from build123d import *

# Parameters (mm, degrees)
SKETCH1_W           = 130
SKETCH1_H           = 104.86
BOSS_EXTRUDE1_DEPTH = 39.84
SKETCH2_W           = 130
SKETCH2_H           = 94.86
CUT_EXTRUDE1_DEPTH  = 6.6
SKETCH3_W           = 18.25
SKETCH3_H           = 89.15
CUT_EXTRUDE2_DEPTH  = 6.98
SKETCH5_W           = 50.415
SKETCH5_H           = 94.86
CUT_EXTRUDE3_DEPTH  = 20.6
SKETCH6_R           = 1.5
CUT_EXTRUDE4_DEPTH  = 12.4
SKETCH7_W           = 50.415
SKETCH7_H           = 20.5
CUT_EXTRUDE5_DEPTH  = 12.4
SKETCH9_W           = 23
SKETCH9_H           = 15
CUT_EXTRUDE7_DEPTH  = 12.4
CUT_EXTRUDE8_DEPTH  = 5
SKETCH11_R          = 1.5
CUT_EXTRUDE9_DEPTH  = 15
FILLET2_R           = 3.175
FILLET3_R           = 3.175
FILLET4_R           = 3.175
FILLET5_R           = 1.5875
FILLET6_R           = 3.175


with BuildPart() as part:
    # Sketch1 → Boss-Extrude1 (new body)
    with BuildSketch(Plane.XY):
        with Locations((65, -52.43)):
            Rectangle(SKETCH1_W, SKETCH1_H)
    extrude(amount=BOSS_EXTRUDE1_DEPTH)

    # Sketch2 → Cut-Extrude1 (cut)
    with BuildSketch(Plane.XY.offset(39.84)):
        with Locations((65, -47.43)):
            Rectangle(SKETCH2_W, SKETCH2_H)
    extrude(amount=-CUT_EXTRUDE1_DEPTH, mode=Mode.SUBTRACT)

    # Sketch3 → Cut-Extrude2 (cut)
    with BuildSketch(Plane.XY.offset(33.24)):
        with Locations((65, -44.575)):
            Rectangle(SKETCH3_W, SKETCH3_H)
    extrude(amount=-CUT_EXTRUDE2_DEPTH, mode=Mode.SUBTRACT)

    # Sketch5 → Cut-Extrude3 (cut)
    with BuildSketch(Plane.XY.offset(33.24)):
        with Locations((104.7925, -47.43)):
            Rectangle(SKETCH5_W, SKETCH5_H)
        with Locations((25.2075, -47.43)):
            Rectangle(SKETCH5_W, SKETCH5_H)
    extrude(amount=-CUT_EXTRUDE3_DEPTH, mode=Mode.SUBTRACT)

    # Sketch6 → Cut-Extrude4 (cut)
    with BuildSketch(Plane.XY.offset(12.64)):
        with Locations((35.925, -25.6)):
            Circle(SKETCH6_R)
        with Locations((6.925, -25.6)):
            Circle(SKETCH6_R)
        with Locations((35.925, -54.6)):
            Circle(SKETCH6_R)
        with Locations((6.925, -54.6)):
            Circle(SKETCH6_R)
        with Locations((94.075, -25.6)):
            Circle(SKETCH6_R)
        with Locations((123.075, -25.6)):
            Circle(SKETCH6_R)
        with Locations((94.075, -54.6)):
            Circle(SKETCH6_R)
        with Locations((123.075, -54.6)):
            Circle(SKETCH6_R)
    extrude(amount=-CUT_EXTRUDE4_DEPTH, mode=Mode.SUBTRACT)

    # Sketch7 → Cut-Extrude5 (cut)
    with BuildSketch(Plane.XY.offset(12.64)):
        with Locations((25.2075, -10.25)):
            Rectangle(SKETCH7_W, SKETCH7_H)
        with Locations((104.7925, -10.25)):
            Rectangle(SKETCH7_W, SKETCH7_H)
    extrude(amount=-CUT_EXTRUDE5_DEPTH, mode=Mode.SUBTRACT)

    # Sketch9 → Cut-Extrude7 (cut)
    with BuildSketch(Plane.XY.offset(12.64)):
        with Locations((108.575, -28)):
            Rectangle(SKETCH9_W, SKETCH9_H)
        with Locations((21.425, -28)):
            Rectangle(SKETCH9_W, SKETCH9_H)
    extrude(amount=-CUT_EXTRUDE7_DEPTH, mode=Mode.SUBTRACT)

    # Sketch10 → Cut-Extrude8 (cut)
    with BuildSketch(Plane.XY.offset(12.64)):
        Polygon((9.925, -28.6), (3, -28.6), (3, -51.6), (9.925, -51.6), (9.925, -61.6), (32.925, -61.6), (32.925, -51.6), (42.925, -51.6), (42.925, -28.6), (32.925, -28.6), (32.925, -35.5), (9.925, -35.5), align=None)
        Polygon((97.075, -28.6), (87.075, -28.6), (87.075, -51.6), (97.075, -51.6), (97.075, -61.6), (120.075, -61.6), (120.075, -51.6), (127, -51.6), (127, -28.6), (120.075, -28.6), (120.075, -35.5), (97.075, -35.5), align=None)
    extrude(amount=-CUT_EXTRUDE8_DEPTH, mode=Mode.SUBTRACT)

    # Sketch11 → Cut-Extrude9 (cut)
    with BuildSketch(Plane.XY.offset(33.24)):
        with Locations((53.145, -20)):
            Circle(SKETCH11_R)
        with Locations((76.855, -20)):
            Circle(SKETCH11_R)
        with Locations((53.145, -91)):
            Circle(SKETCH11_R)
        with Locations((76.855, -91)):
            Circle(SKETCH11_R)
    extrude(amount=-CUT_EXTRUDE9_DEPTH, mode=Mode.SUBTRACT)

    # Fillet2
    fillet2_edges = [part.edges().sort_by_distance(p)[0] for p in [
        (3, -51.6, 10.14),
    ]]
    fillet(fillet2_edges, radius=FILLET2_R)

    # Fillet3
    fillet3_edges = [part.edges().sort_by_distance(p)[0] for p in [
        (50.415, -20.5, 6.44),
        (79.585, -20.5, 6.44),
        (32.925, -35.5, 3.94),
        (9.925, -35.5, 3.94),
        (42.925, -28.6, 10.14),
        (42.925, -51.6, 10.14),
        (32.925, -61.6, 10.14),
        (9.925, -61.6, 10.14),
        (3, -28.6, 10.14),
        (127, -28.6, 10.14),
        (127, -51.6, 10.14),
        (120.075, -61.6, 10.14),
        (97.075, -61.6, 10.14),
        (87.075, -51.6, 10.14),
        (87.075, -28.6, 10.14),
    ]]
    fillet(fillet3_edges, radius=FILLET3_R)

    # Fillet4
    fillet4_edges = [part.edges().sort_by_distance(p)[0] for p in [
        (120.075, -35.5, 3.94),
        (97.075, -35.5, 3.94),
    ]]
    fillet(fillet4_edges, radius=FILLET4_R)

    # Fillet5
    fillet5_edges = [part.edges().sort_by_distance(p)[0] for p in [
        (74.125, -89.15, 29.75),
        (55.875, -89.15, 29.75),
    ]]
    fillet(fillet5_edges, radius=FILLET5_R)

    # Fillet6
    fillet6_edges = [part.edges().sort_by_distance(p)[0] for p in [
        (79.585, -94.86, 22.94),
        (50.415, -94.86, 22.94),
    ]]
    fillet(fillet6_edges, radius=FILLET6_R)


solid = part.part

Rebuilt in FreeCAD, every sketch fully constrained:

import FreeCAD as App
import Part
import Sketcher


def edges_at(feature, points):
    """Names of the edges that pass closest to the given points."""
    edges = feature.Shape.Edges
    near = lambda p: min(range(len(edges)), key=lambda i: edges[i].distToShape(Part.Vertex(*p))[0])
    return sorted({f"Edge{near(p) + 1}" for p in points})


def add_polygon(sketch, points):
    """Adds a closed chain of lines whose ends are joined by coincident constraints."""
    first, n = sketch.GeometryCount, len(points)
    for a, b in zip(points, points[1:] + points[:1]):
        sketch.addGeometry(Part.LineSegment(App.Vector(*a, 0), App.Vector(*b, 0)), False)
    for i in range(n):
        sketch.addConstraint(Sketcher.Constraint("Coincident", first + i, 2, first + (i + 1) % n, 1))

doc = App.newDocument("Part")
body = doc.addObject("PartDesign::Body", "Body")

# Sketch on XY plane
sketch1 = body.newObject("Sketcher::SketchObject", "Sketch")
sketch1.AttachmentSupport = (doc.getObject("XY_Plane"), [""])
sketch1.MapMode = "FlatFace"
add_polygon(sketch1, [(0, 0), (0, -105), (130, -105), (130, 0)])  # lines 0-3
sketch1.addConstraint(Sketcher.Constraint("Vertical", 0))
sketch1.addConstraint(Sketcher.Constraint("Horizontal", 1))
sketch1.addConstraint(Sketcher.Constraint("Vertical", 2))
sketch1.addConstraint(Sketcher.Constraint("Horizontal", 3))
sketch1.addConstraint(Sketcher.Constraint("Coincident", 3, 2, -1, 1))
sketch1.addConstraint(Sketcher.Constraint("DistanceX", 1, 1, 1, 2, 130.0))
sketch1.addConstraint(Sketcher.Constraint("DistanceY", 0, 2, 0, 1, 104.86))
pad1 = body.newObject("PartDesign::Pad", "Pad")
pad1.Profile = sketch1
pad1.Length = 39.84

# Sketch on XY plane
sketch2 = body.newObject("Sketcher::SketchObject", "Sketch001")
sketch2.AttachmentSupport = (doc.getObject("XY_Plane"), [""])
sketch2.MapMode = "FlatFace"
sketch2.AttachmentOffset = App.Placement(App.Vector(0, 0, 39.84), App.Rotation())
add_polygon(sketch2, [(0, 0), (0, -95), (130, -95), (130, 0)])  # lines 0-3
sketch2.addConstraint(Sketcher.Constraint("Vertical", 0))
sketch2.addConstraint(Sketcher.Constraint("Horizontal", 1))
sketch2.addConstraint(Sketcher.Constraint("Vertical", 2))
sketch2.addConstraint(Sketcher.Constraint("Horizontal", 3))
sketch2.addConstraint(Sketcher.Constraint("Coincident", 3, 2, -1, 1))
sketch2.addConstraint(Sketcher.Constraint("DistanceX", 1, 1, 1, 2, 130.0))
sketch2.addConstraint(Sketcher.Constraint("DistanceY", 0, 2, 0, 1, 94.86))
pocket1 = body.newObject("PartDesign::Pocket", "Pocket")
pocket1.Profile = sketch2
pocket1.Length = 6.6

# Sketch on XY plane
sketch3 = body.newObject("Sketcher::SketchObject", "Sketch002")
sketch3.AttachmentSupport = (doc.getObject("XY_Plane"), [""])
sketch3.MapMode = "FlatFace"
sketch3.AttachmentOffset = App.Placement(App.Vector(0, 0, 33.24), App.Rotation())
add_polygon(sketch3, [(56, 0), (56, -89), (74, -89), (74, 0)])  # lines 0-3
sketch3.addConstraint(Sketcher.Constraint("Vertical", 0))
sketch3.addConstraint(Sketcher.Constraint("Horizontal", 1))
sketch3.addConstraint(Sketcher.Constraint("Vertical", 2))
sketch3.addConstraint(Sketcher.Constraint("Horizontal", 3))
sketch3.addConstraint(Sketcher.Constraint("PointOnObject", 2, 2, -1))
sketch3.addConstraint(Sketcher.Constraint("DistanceX", 1, 1, 1, 2, 18.25))
sketch3.addConstraint(Sketcher.Constraint("DistanceY", 0, 2, 0, 1, 89.15))
sketch3.addConstraint(Sketcher.Constraint("DistanceX", -1, 1, 0, 2, 55.875))
pocket2 = body.newObject("PartDesign::Pocket", "Pocket001")
pocket2.Profile = sketch3
pocket2.Length = 6.98

# Sketch on XY plane
sketch4 = body.newObject("Sketcher::SketchObject", "Sketch003")
sketch4.AttachmentSupport = (doc.getObject("XY_Plane"), [""])
sketch4.MapMode = "FlatFace"
sketch4.AttachmentOffset = App.Placement(App.Vector(0, 0, 33.24), App.Rotation())
add_polygon(sketch4, [(80, 0), (80, -95), (130, -95), (130, 0)])  # lines 0-3
add_polygon(sketch4, [(0, 0), (0, -95), (50, -95), (50, 0)])  # lines 4-7
sketch4.addConstraint(Sketcher.Constraint("Vertical", 0))
sketch4.addConstraint(Sketcher.Constraint("Horizontal", 1))
sketch4.addConstraint(Sketcher.Constraint("Vertical", 2))
sketch4.addConstraint(Sketcher.Constraint("Horizontal", 3))
sketch4.addConstraint(Sketcher.Constraint("Vertical", 4))
sketch4.addConstraint(Sketcher.Constraint("Horizontal", 5))
sketch4.addConstraint(Sketcher.Constraint("Vertical", 6))
sketch4.addConstraint(Sketcher.Constraint("Horizontal", 7))
sketch4.addConstraint(Sketcher.Constraint("Coincident", 7, 2, -1, 1))
sketch4.addConstraint(Sketcher.Constraint("PointOnObject", 2, 2, -1))
sketch4.addConstraint(Sketcher.Constraint("Horizontal", 1, 2, 4, 2))
sketch4.addConstraint(Sketcher.Constraint("Equal", 3, 5))
sketch4.addConstraint(Sketcher.Constraint("DistanceX", -1, 1, 1, 2, 130.0))
sketch4.addConstraint(Sketcher.Constraint("DistanceY", 0, 2, 0, 1, 94.86))
sketch4.addConstraint(Sketcher.Constraint("DistanceX", 1, 1, 1, 2, 50.415))
pocket3 = body.newObject("PartDesign::Pocket", "Pocket002")
pocket3.Profile = sketch4
pocket3.Length = 20.6

# Sketch on XY plane
sketch5 = body.newObject("Sketcher::SketchObject", "Sketch004")
sketch5.AttachmentSupport = (doc.getObject("XY_Plane"), [""])
sketch5.MapMode = "FlatFace"
sketch5.AttachmentOffset = App.Placement(App.Vector(0, 0, 12.64), App.Rotation())
sketch5.addGeometry(Part.Circle(App.Vector(35.9, -25.6, 0), App.Vector(0, 0, 1), 1.5), False)
sketch5.addGeometry(Part.Circle(App.Vector(6.9, -25.6, 0), App.Vector(0, 0, 1), 1.5), False)
sketch5.addGeometry(Part.Circle(App.Vector(35.9, -54.6, 0), App.Vector(0, 0, 1), 1.5), False)
sketch5.addGeometry(Part.Circle(App.Vector(6.9, -54.6, 0), App.Vector(0, 0, 1), 1.5), False)
sketch5.addGeometry(Part.Circle(App.Vector(94.1, -25.6, 0), App.Vector(0, 0, 1), 1.5), False)
sketch5.addGeometry(Part.Circle(App.Vector(123.1, -25.6, 0), App.Vector(0, 0, 1), 1.5), False)
sketch5.addGeometry(Part.Circle(App.Vector(94.1, -54.6, 0), App.Vector(0, 0, 1), 1.5), False)
sketch5.addGeometry(Part.Circle(App.Vector(123.1, -54.6, 0), App.Vector(0, 0, 1), 1.5), False)
sketch5.addConstraint(Sketcher.Constraint("Equal", 0, 1))
sketch5.addConstraint(Sketcher.Constraint("Equal", 1, 2))
sketch5.addConstraint(Sketcher.Constraint("Equal", 2, 3))
sketch5.addConstraint(Sketcher.Constraint("Equal", 3, 4))
sketch5.addConstraint(Sketcher.Constraint("Equal", 4, 5))
sketch5.addConstraint(Sketcher.Constraint("Equal", 5, 6))
sketch5.addConstraint(Sketcher.Constraint("Equal", 6, 7))
sketch5.addConstraint(Sketcher.Constraint("Horizontal", 0, 3, 1, 3))
sketch5.addConstraint(Sketcher.Constraint("Horizontal", 2, 3, 3, 3))
sketch5.addConstraint(Sketcher.Constraint("Horizontal", 1, 3, 4, 3))
sketch5.addConstraint(Sketcher.Constraint("Horizontal", 4, 3, 5, 3))
sketch5.addConstraint(Sketcher.Constraint("Horizontal", 3, 3, 6, 3))
sketch5.addConstraint(Sketcher.Constraint("Horizontal", 6, 3, 7, 3))
sketch5.addConstraint(Sketcher.Constraint("Vertical", 0, 3, 2, 3))
sketch5.addConstraint(Sketcher.Constraint("Vertical", 1, 3, 3, 3))
sketch5.addConstraint(Sketcher.Constraint("Vertical", 4, 3, 6, 3))
sketch5.addConstraint(Sketcher.Constraint("Vertical", 5, 3, 7, 3))
sketch5.addConstraint(Sketcher.Constraint("Diameter", 0, 3.0))
sketch5.addConstraint(Sketcher.Constraint("DistanceX", 1, 3, 0, 3, 29.0))
sketch5.addConstraint(Sketcher.Constraint("DistanceY", 2, 3, 0, 3, 29.0))
sketch5.addConstraint(Sketcher.Constraint("DistanceX", 4, 3, 5, 3, 29.0))
sketch5.addConstraint(Sketcher.Constraint("DistanceY", 0, 3, -1, 1, 25.6))
sketch5.addConstraint(Sketcher.Constraint("DistanceX", 0, 3, 4, 3, 58.15))
sketch5.addConstraint(Sketcher.Constraint("DistanceX", -1, 1, 0, 3, 35.925))
pocket4 = body.newObject("PartDesign::Pocket", "Pocket003")
pocket4.Profile = sketch5
pocket4.Length = 12.4

# Sketch on XY plane
sketch6 = body.newObject("Sketcher::SketchObject", "Sketch005")
sketch6.AttachmentSupport = (doc.getObject("XY_Plane"), [""])
sketch6.MapMode = "FlatFace"
sketch6.AttachmentOffset = App.Placement(App.Vector(0, 0, 12.64), App.Rotation())
add_polygon(sketch6, [(0, 0), (0, -20), (50, -20), (50, 0)])  # lines 0-3
add_polygon(sketch6, [(80, 0), (80, -20), (130, -20), (130, 0)])  # lines 4-7
sketch6.addConstraint(Sketcher.Constraint("Vertical", 0))
sketch6.addConstraint(Sketcher.Constraint("Horizontal", 1))
sketch6.addConstraint(Sketcher.Constraint("Vertical", 2))
sketch6.addConstraint(Sketcher.Constraint("Horizontal", 3))
sketch6.addConstraint(Sketcher.Constraint("Vertical", 4))
sketch6.addConstraint(Sketcher.Constraint("Horizontal", 5))
sketch6.addConstraint(Sketcher.Constraint("Vertical", 6))
sketch6.addConstraint(Sketcher.Constraint("Horizontal", 7))
sketch6.addConstraint(Sketcher.Constraint("Coincident", 3, 2, -1, 1))
sketch6.addConstraint(Sketcher.Constraint("PointOnObject", 6, 2, -1))
sketch6.addConstraint(Sketcher.Constraint("Horizontal", 1, 2, 4, 2))
sketch6.addConstraint(Sketcher.Constraint("Equal", 3, 5))
sketch6.addConstraint(Sketcher.Constraint("DistanceY", 0, 2, 0, 1, 20.5))
sketch6.addConstraint(Sketcher.Constraint("DistanceX", -1, 1, 5, 2, 130.0))
sketch6.addConstraint(Sketcher.Constraint("DistanceX", 1, 1, 1, 2, 50.415))
pocket5 = body.newObject("PartDesign::Pocket", "Pocket004")
pocket5.Profile = sketch6
pocket5.Length = 12.4

# Sketch on XY plane
sketch7 = body.newObject("Sketcher::SketchObject", "Sketch006")
sketch7.AttachmentSupport = (doc.getObject("XY_Plane"), [""])
sketch7.MapMode = "FlatFace"
sketch7.AttachmentOffset = App.Placement(App.Vector(0, 0, 12.64), App.Rotation())
add_polygon(sketch7, [(97, -20), (97, -36), (120, -36), (120, -20)])  # lines 0-3
add_polygon(sketch7, [(10, -20), (10, -36), (33, -36), (33, -20)])  # lines 4-7
sketch7.addConstraint(Sketcher.Constraint("Vertical", 0))
sketch7.addConstraint(Sketcher.Constraint("Horizontal", 1))
sketch7.addConstraint(Sketcher.Constraint("Vertical", 2))
sketch7.addConstraint(Sketcher.Constraint("Horizontal", 3))
sketch7.addConstraint(Sketcher.Constraint("Vertical", 4))
sketch7.addConstraint(Sketcher.Constraint("Horizontal", 5))
sketch7.addConstraint(Sketcher.Constraint("Vertical", 6))
sketch7.addConstraint(Sketcher.Constraint("Horizontal", 7))
sketch7.addConstraint(Sketcher.Constraint("Horizontal", 1, 2, 4, 2))
sketch7.addConstraint(Sketcher.Constraint("Horizontal", 3, 2, 6, 2))
sketch7.addConstraint(Sketcher.Constraint("Equal", 3, 5))
sketch7.addConstraint(Sketcher.Constraint("DistanceX", 1, 1, 1, 2, 23.0))
sketch7.addConstraint(Sketcher.Constraint("DistanceY", 0, 2, 0, 1, 15.0))
sketch7.addConstraint(Sketcher.Constraint("DistanceY", 0, 2, -1, 1, 35.5))
sketch7.addConstraint(Sketcher.Constraint("DistanceX", 4, 2, 0, 2, 87.15))
sketch7.addConstraint(Sketcher.Constraint("DistanceX", -1, 1, 0, 2, 97.075))
pocket6 = body.newObject("PartDesign::Pocket", "Pocket005")
pocket6.Profile = sketch7
pocket6.Length = 12.4

# Sketch on XY plane
sketch8 = body.newObject("Sketcher::SketchObject", "Sketch007")
sketch8.AttachmentSupport = (doc.getObject("XY_Plane"), [""])
sketch8.MapMode = "FlatFace"
sketch8.AttachmentOffset = App.Placement(App.Vector(0, 0, 12.64), App.Rotation())
add_polygon(sketch8, [(10, -29), (3, -29), (3, -52), (10, -52), (10, -62), (33, -62), (33, -52), (43, -52), (43, -29), (33, -29), (33, -36), (10, -36)])  # lines 0-11
add_polygon(sketch8, [(97, -29), (87, -29), (87, -52), (97, -52), (97, -62), (120, -62), (120, -52), (127, -52), (127, -29), (120, -29), (120, -36), (97, -36)])  # lines 12-23
sketch8.addConstraint(Sketcher.Constraint("Horizontal", 0))
sketch8.addConstraint(Sketcher.Constraint("Vertical", 1))
sketch8.addConstraint(Sketcher.Constraint("Horizontal", 2))
sketch8.addConstraint(Sketcher.Constraint("Vertical", 3))
sketch8.addConstraint(Sketcher.Constraint("Horizontal", 4))
sketch8.addConstraint(Sketcher.Constraint("Vertical", 5))
sketch8.addConstraint(Sketcher.Constraint("Horizontal", 6))
sketch8.addConstraint(Sketcher.Constraint("Vertical", 7))
sketch8.addConstraint(Sketcher.Constraint("Horizontal", 8))
sketch8.addConstraint(Sketcher.Constraint("Vertical", 9))
sketch8.addConstraint(Sketcher.Constraint("Horizontal", 10))
sketch8.addConstraint(Sketcher.Constraint("Vertical", 11))
sketch8.addConstraint(Sketcher.Constraint("Horizontal", 12))
sketch8.addConstraint(Sketcher.Constraint("Vertical", 13))
sketch8.addConstraint(Sketcher.Constraint("Horizontal", 14))
sketch8.addConstraint(Sketcher.Constraint("Vertical", 15))
sketch8.addConstraint(Sketcher.Constraint("Horizontal", 16))
sketch8.addConstraint(Sketcher.Constraint("Vertical", 17))
sketch8.addConstraint(Sketcher.Constraint("Horizontal", 18))
sketch8.addConstraint(Sketcher.Constraint("Vertical", 19))
sketch8.addConstraint(Sketcher.Constraint("Horizontal", 20))
sketch8.addConstraint(Sketcher.Constraint("Vertical", 21))
sketch8.addConstraint(Sketcher.Constraint("Horizontal", 22))
sketch8.addConstraint(Sketcher.Constraint("Vertical", 23))
sketch8.addConstraint(Sketcher.Constraint("Horizontal", 2, 2, 5, 2))
sketch8.addConstraint(Sketcher.Constraint("Horizontal", 0, 2, 7, 2))
sketch8.addConstraint(Sketcher.Constraint("Horizontal", 11, 2, 12, 2))
sketch8.addConstraint(Sketcher.Constraint("Horizontal", 6, 2, 13, 2))
sketch8.addConstraint(Sketcher.Constraint("Horizontal", 4, 2, 15, 2))
sketch8.addConstraint(Sketcher.Constraint("Horizontal", 14, 2, 17, 2))
sketch8.addConstraint(Sketcher.Constraint("Horizontal", 12, 2, 19, 2))
sketch8.addConstraint(Sketcher.Constraint("Horizontal", 10, 2, 21, 2))
sketch8.addConstraint(Sketcher.Constraint("Vertical", 5, 2, 8, 2))
sketch8.addConstraint(Sketcher.Constraint("Vertical", 3, 2, 10, 2))
sketch8.addConstraint(Sketcher.Constraint("Vertical", 17, 2, 20, 2))
sketch8.addConstraint(Sketcher.Constraint("Vertical", 15, 2, 22, 2))
sketch8.addConstraint(Sketcher.Constraint("Equal", 8, 12))
sketch8.addConstraint(Sketcher.Constraint("Equal", 10, 16))
sketch8.addConstraint(Sketcher.Constraint("Equal", 2, 18))
sketch8.addConstraint(Sketcher.Constraint("Equal", 22, 1))
sketch8.addConstraint(Sketcher.Constraint("Equal", 14, 3))
sketch8.addConstraint(Sketcher.Constraint("DistanceX", 4, 1, 4, 2, 23.0))
sketch8.addConstraint(Sketcher.Constraint("DistanceX", 6, 1, 6, 2, 10.0))
sketch8.addConstraint(Sketcher.Constraint("DistanceY", 9, 2, 9, 1, 6.9))
sketch8.addConstraint(Sketcher.Constraint("DistanceX", -1, 1, 0, 2, 3.0))
sketch8.addConstraint(Sketcher.Constraint("DistanceX", -1, 1, 18, 2, 127.0))
sketch8.addConstraint(Sketcher.Constraint("DistanceY", 0, 2, -1, 1, 28.6))
sketch8.addConstraint(Sketcher.Constraint("DistanceX", 0, 2, 0, 1, 6.925))
pocket7 = body.newObject("PartDesign::Pocket", "Pocket006")
pocket7.Profile = sketch8
pocket7.Length = 5

# Sketch on XY plane
sketch9 = body.newObject("Sketcher::SketchObject", "Sketch008")
sketch9.AttachmentSupport = (doc.getObject("XY_Plane"), [""])
sketch9.MapMode = "FlatFace"
sketch9.AttachmentOffset = App.Placement(App.Vector(0, 0, 33.24), App.Rotation())
sketch9.addGeometry(Part.Circle(App.Vector(53.1, -20, 0), App.Vector(0, 0, 1), 1.5), False)
sketch9.addGeometry(Part.Circle(App.Vector(76.9, -20, 0), App.Vector(0, 0, 1), 1.5), False)
sketch9.addGeometry(Part.Circle(App.Vector(53.1, -91, 0), App.Vector(0, 0, 1), 1.5), False)
sketch9.addGeometry(Part.Circle(App.Vector(76.9, -91, 0), App.Vector(0, 0, 1), 1.5), False)
sketch9.addConstraint(Sketcher.Constraint("Equal", 0, 1))
sketch9.addConstraint(Sketcher.Constraint("Equal", 1, 2))
sketch9.addConstraint(Sketcher.Constraint("Equal", 2, 3))
sketch9.addConstraint(Sketcher.Constraint("Horizontal", 0, 3, 1, 3))
sketch9.addConstraint(Sketcher.Constraint("Horizontal", 2, 3, 3, 3))
sketch9.addConstraint(Sketcher.Constraint("Vertical", 0, 3, 2, 3))
sketch9.addConstraint(Sketcher.Constraint("Vertical", 1, 3, 3, 3))
sketch9.addConstraint(Sketcher.Constraint("Diameter", 0, 3.0))
sketch9.addConstraint(Sketcher.Constraint("DistanceY", 0, 3, -1, 1, 20.0))
sketch9.addConstraint(Sketcher.Constraint("DistanceY", 2, 3, -1, 1, 91.0))
sketch9.addConstraint(Sketcher.Constraint("DistanceX", 0, 3, 1, 3, 23.71))
sketch9.addConstraint(Sketcher.Constraint("DistanceX", -1, 1, 0, 3, 53.145))
pocket8 = body.newObject("PartDesign::Pocket", "Pocket007")
pocket8.Profile = sketch9
pocket8.Length = 15
doc.recompute()

fillet = body.newObject("PartDesign::Fillet", "Fillet")
fillet.Base = (pocket8, edges_at(pocket8, [(3, -51.6, 10.14)]))
fillet.Radius = 3.175
doc.recompute()

fillet2 = body.newObject("PartDesign::Fillet", "Fillet001")
fillet2.Base = (fillet, edges_at(fillet, [
    (50.415, -20.5, 6.44),
    (79.585, -20.5, 6.44),
    (32.925, -35.5, 3.94),
    (9.925, -35.5, 3.94),
    (42.925, -28.6, 10.14),
    (42.925, -51.6, 10.14),
    (32.925, -61.6, 10.14),
    (9.925, -61.6, 10.14),
    (3, -28.6, 10.14),
    (127, -28.6, 10.14),
    (127, -51.6, 10.14),
    (120.075, -61.6, 10.14),
    (97.075, -61.6, 10.14),
    (87.075, -51.6, 10.14),
    (87.075, -28.6, 10.14),
]))
fillet2.Radius = 3.175
doc.recompute()

fillet3 = body.newObject("PartDesign::Fillet", "Fillet002")
fillet3.Base = (fillet2, edges_at(fillet2, [(120.075, -35.5, 3.94), (97.075, -35.5, 3.94)]))
fillet3.Radius = 3.175
doc.recompute()

fillet4 = body.newObject("PartDesign::Fillet", "Fillet003")
fillet4.Base = (fillet3, edges_at(fillet3, [(74.125, -89.15, 29.75), (55.875, -89.15, 29.75)]))
fillet4.Radius = 1.5875
doc.recompute()

fillet5 = body.newObject("PartDesign::Fillet", "Fillet004")
fillet5.Base = (fillet4, edges_at(fillet4, [(79.585, -94.86, 22.94), (50.415, -94.86, 22.94)]))
fillet5.Radius = 3.175

doc.recompute()
